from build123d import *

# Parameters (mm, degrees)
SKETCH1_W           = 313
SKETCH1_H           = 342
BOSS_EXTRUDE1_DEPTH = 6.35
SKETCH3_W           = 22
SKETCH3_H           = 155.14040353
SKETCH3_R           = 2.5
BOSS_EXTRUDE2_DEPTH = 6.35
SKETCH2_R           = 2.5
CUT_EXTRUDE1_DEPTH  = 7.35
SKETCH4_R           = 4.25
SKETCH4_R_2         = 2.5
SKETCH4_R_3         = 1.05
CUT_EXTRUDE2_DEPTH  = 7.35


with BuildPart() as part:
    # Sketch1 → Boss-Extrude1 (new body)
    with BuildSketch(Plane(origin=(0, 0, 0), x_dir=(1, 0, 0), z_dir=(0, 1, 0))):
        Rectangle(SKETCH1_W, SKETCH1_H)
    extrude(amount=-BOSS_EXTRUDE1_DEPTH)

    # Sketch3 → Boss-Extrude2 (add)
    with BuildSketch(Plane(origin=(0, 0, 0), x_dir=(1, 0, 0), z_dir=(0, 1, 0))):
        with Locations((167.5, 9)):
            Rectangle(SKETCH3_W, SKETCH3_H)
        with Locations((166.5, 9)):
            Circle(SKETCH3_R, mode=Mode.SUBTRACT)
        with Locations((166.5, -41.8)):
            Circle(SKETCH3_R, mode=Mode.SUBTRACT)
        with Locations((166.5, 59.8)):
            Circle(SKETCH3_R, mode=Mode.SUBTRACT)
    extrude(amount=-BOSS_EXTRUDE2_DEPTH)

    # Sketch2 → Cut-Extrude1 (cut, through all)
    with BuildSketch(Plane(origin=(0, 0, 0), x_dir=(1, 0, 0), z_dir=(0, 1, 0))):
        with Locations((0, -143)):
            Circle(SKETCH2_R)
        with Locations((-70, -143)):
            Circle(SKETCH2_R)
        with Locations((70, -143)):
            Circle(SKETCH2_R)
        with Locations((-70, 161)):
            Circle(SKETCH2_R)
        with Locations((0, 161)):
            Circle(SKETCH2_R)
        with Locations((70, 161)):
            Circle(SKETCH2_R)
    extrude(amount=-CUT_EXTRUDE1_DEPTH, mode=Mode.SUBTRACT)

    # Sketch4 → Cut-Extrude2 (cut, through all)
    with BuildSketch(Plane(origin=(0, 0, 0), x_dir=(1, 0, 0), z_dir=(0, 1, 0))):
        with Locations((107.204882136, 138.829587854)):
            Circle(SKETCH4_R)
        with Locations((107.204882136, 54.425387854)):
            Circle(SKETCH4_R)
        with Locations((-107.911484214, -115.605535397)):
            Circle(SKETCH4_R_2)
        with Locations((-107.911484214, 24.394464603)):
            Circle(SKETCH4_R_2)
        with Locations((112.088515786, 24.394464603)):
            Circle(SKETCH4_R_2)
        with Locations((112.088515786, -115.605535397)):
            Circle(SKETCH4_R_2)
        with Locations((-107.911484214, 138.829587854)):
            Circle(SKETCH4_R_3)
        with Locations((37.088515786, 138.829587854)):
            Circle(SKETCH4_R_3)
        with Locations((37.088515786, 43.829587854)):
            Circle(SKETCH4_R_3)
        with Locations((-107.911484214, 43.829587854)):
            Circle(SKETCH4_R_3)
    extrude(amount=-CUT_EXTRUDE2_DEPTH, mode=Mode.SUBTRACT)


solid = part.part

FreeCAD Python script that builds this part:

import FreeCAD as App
import Part
import Sketcher
Q = App.Units.Quantity


def add_polygon(sketch, points):
    """Adds a closed chain of lines whose ends are joined by coincident constraints."""
    first, n = sketch.GeometryCount, len(points)
    for a, b in zip(points, points[1:] + points[:1]):
        sketch.addGeometry(Part.LineSegment(App.Vector(*a, 0), App.Vector(*b, 0)), False)
    for i in range(n):
        sketch.addConstraint(Sketcher.Constraint("Coincident", first + i, 2, first + (i + 1) % n, 1))

doc = App.newDocument("Part")
params = doc.addObject("Spreadsheet::Sheet", "Params")
for row, (alias, value) in enumerate([
    ("sketch1_width", "313 mm"),
    ("sketch1_height", "342 mm"),
    ("pad1_length", "6.35 mm"),
    ("sketch2_diameter", "5 mm"),
    ("sketch2_width", "22 mm"),
    ("pad2_length", "6.35 mm"),
    ("sketch3_diameter", "5 mm"),
    ("sketch4_diameter", "5 mm"),
    ("sketch4_diameter2", "8.5 mm"),
    ("sketch4_diameter3", "2.1 mm"),
], start=1):
    params.set(f"A{row}", alias)
    params.set(f"B{row}", "=" + value)
    params.setAlias(f"B{row}", alias)

body = doc.addObject("PartDesign::Body", "Body")

# Sketch on XZ plane
sketch1 = body.newObject("Sketcher::SketchObject", "Sketch")
sketch1.AttachmentSupport = (doc.getObject("XZ_Plane"), [""])
sketch1.MapMode = "FlatFace"
add_polygon(sketch1, [(-156, -171), (-156, 171), (156, 171), (156, -171)])  # lines 0-3
sketch1.addConstraint(Sketcher.Constraint("Vertical", 0))
sketch1.addConstraint(Sketcher.Constraint("Horizontal", 1))
sketch1.addConstraint(Sketcher.Constraint("Vertical", 2))
sketch1.addConstraint(Sketcher.Constraint("Horizontal", 3))
sketch1.addConstraint(Sketcher.Constraint("Symmetric", 0, 2, 2, 2, -1, 1))
sketch1.addConstraint(Sketcher.Constraint("DistanceX", 1, 1, 1, 2, Q("313 mm")))
sketch1.addConstraint(Sketcher.Constraint("DistanceY", 0, 1, 0, 2, Q("342 mm")))
sketch1.setExpression("Constraints[9]", "Params.sketch1_width")
sketch1.setExpression("Constraints[10]", "Params.sketch1_height")
pad1 = body.newObject("PartDesign::Pad", "Pad")
pad1.Profile = sketch1
pad1.setExpression("Length", "Params.pad1_length")

# Sketch on XZ plane
sketch2 = body.newObject("Sketcher::SketchObject", "Sketch001")
sketch2.AttachmentSupport = (doc.getObject("XZ_Plane"), [""])
sketch2.MapMode = "FlatFace"
add_polygon(sketch2, [(156.5, -86.6), (156.5, 68.6), (178.5, 68.6), (178.5, -86.6)])  # lines 0-3
sketch2.addGeometry(Part.Circle(App.Vector(166.5, 41.8, 0), App.Vector(0, 0, 1), 2.5), False)  # 4
sketch2.addGeometry(Part.Circle(App.Vector(166.5, -9, 0), App.Vector(0, 0, 1), 2.5), False)  # 5
sketch2.addGeometry(Part.Circle(App.Vector(166.5, -59.8, 0), App.Vector(0, 0, 1), 2.5), False)  # 6
sketch2.addConstraint(Sketcher.Constraint("Vertical", 0))
sketch2.addConstraint(Sketcher.Constraint("Horizontal", 1))
sketch2.addConstraint(Sketcher.Constraint("Vertical", 2))
sketch2.addConstraint(Sketcher.Constraint("Horizontal", 3))
sketch2.addConstraint(Sketcher.Constraint("Equal", 4, 5))
sketch2.addConstraint(Sketcher.Constraint("Equal", 5, 6))
sketch2.addConstraint(Sketcher.Constraint("Vertical", 4, 3, 5, 3))
sketch2.addConstraint(Sketcher.Constraint("Vertical", 5, 3, 6, 3))
sketch2.addConstraint(Sketcher.Constraint("Diameter", 4, Q("5 mm")))
sketch2.addConstraint(Sketcher.Constraint("DistanceX", 1, 1, 1, 2, Q("22 mm")))
sketch2.addConstraint(Sketcher.Constraint("DistanceY", 5, 3, -1, 1, Q("9 mm")))
sketch2.addConstraint(Sketcher.Constraint("DistanceX", 0, 2, 4, 3, Q("10 mm")))
sketch2.addConstraint(Sketcher.Constraint("DistanceX", -1, 1, 4, 3, Q("166.5 mm")))
sketch2.addConstraint(Sketcher.Constraint("DistanceY", -1, 1, 4, 3, Q("41.8 mm")))
sketch2.addConstraint(Sketcher.Constraint("DistanceY", 6, 3, -1, 1, Q("59.8 mm")))
sketch2.addConstraint(Sketcher.Constraint("DistanceY", -1, 1, 0, 2, Q("68.570202 mm")))
sketch2.addConstraint(Sketcher.Constraint("DistanceY", 2, 2, -1, 1, Q("86.570202 mm")))
sketch2.setExpression("Constraints[12]", "Params.sketch2_diameter")
sketch2.setExpression("Constraints[13]", "Params.sketch2_width")
pad2 = body.newObject("PartDesign::Pad", "Pad001")
pad2.Profile = sketch2
pad2.setExpression("Length", "Params.pad2_length")

# Sketch on XZ plane
sketch3 = body.newObject("Sketcher::SketchObject", "Sketch002")
sketch3.AttachmentSupport = (doc.getObject("XZ_Plane"), [""])
sketch3.MapMode = "FlatFace"
sketch3.addGeometry(Part.Circle(App.Vector(0, 143, 0), App.Vector(0, 0, 1), 2.5), False)
sketch3.addGeometry(Part.Circle(App.Vector(-70, 143, 0), App.Vector(0, 0, 1), 2.5), False)
sketch3.addGeometry(Part.Circle(App.Vector(70, 143, 0), App.Vector(0, 0, 1), 2.5), False)
sketch3.addGeometry(Part.Circle(App.Vector(-70, -161, 0), App.Vector(0, 0, 1), 2.5), False)
sketch3.addGeometry(Part.Circle(App.Vector(0, -161, 0), App.Vector(0, 0, 1), 2.5), False)
sketch3.addGeometry(Part.Circle(App.Vector(70, -161, 0), App.Vector(0, 0, 1), 2.5), False)
sketch3.addConstraint(Sketcher.Constraint("Equal", 0, 1))
sketch3.addConstraint(Sketcher.Constraint("Equal", 1, 2))
sketch3.addConstraint(Sketcher.Constraint("Equal", 2, 3))
sketch3.addConstraint(Sketcher.Constraint("Equal", 3, 4))
sketch3.addConstraint(Sketcher.Constraint("Equal", 4, 5))
sketch3.addConstraint(Sketcher.Constraint("Symmetric", 1, 3, 2, 3, -2))
sketch3.addConstraint(Sketcher.Constraint("Symmetric", 3, 3, 5, 3, -2))
sketch3.addConstraint(Sketcher.Constraint("PointOnObject", 0, 3, -2))
sketch3.addConstraint(Sketcher.Constraint("PointOnObject", 4, 3, -2))
sketch3.addConstraint(Sketcher.Constraint("Horizontal", 0, 3, 1, 3))
sketch3.addConstraint(Sketcher.Constraint("Horizontal", 3, 3, 4, 3))
sketch3.addConstraint(Sketcher.Constraint("Vertical", 1, 3, 3, 3))
sketch3.addConstraint(Sketcher.Constraint("Diameter", 0, Q("5 mm")))
sketch3.addConstraint(Sketcher.Constraint("DistanceY", -1, 1, 0, 3, Q("143 mm")))
sketch3.addConstraint(Sketcher.Constraint("DistanceX", 1, 3, -1, 1, Q("70 mm")))
sketch3.addConstraint(Sketcher.Constraint("DistanceY", 3, 3, -1, 1, Q("161 mm")))
sketch3.setExpression("Constraints[12]", "Params.sketch3_diameter")
pocket1 = body.newObject("PartDesign::Pocket", "Pocket")
pocket1.Profile = sketch3
pocket1.Type = "ThroughAll"
pocket1.Reversed = True

# Sketch on XZ plane
sketch4 = body.newObject("Sketcher::SketchObject", "Sketch003")
sketch4.AttachmentSupport = (doc.getObject("XZ_Plane"), [""])
sketch4.MapMode = "FlatFace"
sketch4.addGeometry(Part.Circle(App.Vector(107.2, -138.8, 0), App.Vector(0, 0, 1), 4.2), False)
sketch4.addGeometry(Part.Circle(App.Vector(107.2, -54.4, 0), App.Vector(0, 0, 1), 4.2), False)
sketch4.addGeometry(Part.Circle(App.Vector(-107.9, 115.6, 0), App.Vector(0, 0, 1), 2.5), False)
sketch4.addGeometry(Part.Circle(App.Vector(-107.9, -24.4, 0), App.Vector(0, 0, 1), 2.5), False)
sketch4.addGeometry(Part.Circle(App.Vector(112.1, -24.4, 0), App.Vector(0, 0, 1), 2.5), False)
sketch4.addGeometry(Part.Circle(App.Vector(112.1, 115.6, 0), App.Vector(0, 0, 1), 2.5), False)
sketch4.addGeometry(Part.Circle(App.Vector(-107.9, -138.8, 0), App.Vector(0, 0, 1), 1.1), False)
sketch4.addGeometry(Part.Circle(App.Vector(37.1, -138.8, 0), App.Vector(0, 0, 1), 1.1), False)
sketch4.addGeometry(Part.Circle(App.Vector(37.1, -43.8, 0), App.Vector(0, 0, 1), 1.1), False)
sketch4.addGeometry(Part.Circle(App.Vector(-107.9, -43.8, 0), App.Vector(0, 0, 1), 1.1), False)
sketch4.addConstraint(Sketcher.Constraint("Equal", 0, 1))
sketch4.addConstraint(Sketcher.Constraint("Equal", 2, 3))
sketch4.addConstraint(Sketcher.Constraint("Equal", 3, 4))
sketch4.addConstraint(Sketcher.Constraint("Equal", 4, 5))
sketch4.addConstraint(Sketcher.Constraint("Equal", 6, 7))
sketch4.addConstraint(Sketcher.Constraint("Equal", 7, 8))
sketch4.addConstraint(Sketcher.Constraint("Equal", 8, 9))
sketch4.addConstraint(Sketcher.Constraint("Horizontal", 3, 3, 4, 3))
sketch4.addConstraint(Sketcher.Constraint("Horizontal", 2, 3, 5, 3))
sketch4.addConstraint(Sketcher.Constraint("Horizontal", 0, 3, 6, 3))
sketch4.addConstraint(Sketcher.Constraint("Horizontal", 6, 3, 7, 3))
sketch4.addConstraint(Sketcher.Constraint("Horizontal", 8, 3, 9, 3))
sketch4.addConstraint(Sketcher.Constraint("Vertical", 0, 3, 1, 3))
sketch4.addConstraint(Sketcher.Constraint("Vertical", 2, 3, 3, 3))
sketch4.addConstraint(Sketcher.Constraint("Vertical", 4, 3, 5, 3))
sketch4.addConstraint(Sketcher.Constraint("Vertical", 3, 3, 6, 3))
sketch4.addConstraint(Sketcher.Constraint("Vertical", 7, 3, 8, 3))
sketch4.addConstraint(Sketcher.Constraint("Vertical", 6, 3, 9, 3))
sketch4.addConstraint(Sketcher.Constraint("Diameter", 2, Q("5 mm")))
sketch4.addConstraint(Sketcher.Constraint("Diameter", 0, Q("8.5 mm")))
sketch4.addConstraint(Sketcher.Constraint("Diameter", 6, Q("2.1 mm")))
sketch4.addConstraint(Sketcher.Constraint("DistanceY", 3, 3, 2, 3, Q("140 mm")))
sketch4.addConstraint(Sketcher.Constraint("DistanceX", 3, 3, 4, 3, Q("220 mm")))
sketch4.addConstraint(Sketcher.Constraint("DistanceX", 7, 3, 4, 3, Q("75 mm")))
sketch4.addConstraint(Sketcher.Constraint("DistanceY", 7, 3, 8, 3, Q("95 mm")))
sketch4.addConstraint(Sketcher.Constraint("DistanceY", 0, 3, 1, 3, Q("84.4042 mm")))
sketch4.addConstraint(Sketcher.Constraint("DistanceX", -1, 1, 0, 3, Q("107.204882 mm")))
sketch4.addConstraint(Sketcher.Constraint("DistanceY", 0, 3, -1, 1, Q("138.829588 mm")))
sketch4.addConstraint(Sketcher.Constraint("DistanceX", 2, 3, -1, 1, Q("107.911484 mm")))
sketch4.addConstraint(Sketcher.Constraint("DistanceY", -1, 1, 2, 3, Q("115.605535 mm")))
sketch4.setExpression("Constraints[18]", "Params.sketch4_diameter")
sketch4.setExpression("Constraints[19]", "Params.sketch4_diameter2")
sketch4.setExpression("Constraints[20]", "Params.sketch4_diameter3")
pocket2 = body.newObject("PartDesign::Pocket", "Pocket001")
pocket2.Profile = sketch4
pocket2.Type = "ThroughAll"
pocket2.Reversed = True

doc.recompute()
